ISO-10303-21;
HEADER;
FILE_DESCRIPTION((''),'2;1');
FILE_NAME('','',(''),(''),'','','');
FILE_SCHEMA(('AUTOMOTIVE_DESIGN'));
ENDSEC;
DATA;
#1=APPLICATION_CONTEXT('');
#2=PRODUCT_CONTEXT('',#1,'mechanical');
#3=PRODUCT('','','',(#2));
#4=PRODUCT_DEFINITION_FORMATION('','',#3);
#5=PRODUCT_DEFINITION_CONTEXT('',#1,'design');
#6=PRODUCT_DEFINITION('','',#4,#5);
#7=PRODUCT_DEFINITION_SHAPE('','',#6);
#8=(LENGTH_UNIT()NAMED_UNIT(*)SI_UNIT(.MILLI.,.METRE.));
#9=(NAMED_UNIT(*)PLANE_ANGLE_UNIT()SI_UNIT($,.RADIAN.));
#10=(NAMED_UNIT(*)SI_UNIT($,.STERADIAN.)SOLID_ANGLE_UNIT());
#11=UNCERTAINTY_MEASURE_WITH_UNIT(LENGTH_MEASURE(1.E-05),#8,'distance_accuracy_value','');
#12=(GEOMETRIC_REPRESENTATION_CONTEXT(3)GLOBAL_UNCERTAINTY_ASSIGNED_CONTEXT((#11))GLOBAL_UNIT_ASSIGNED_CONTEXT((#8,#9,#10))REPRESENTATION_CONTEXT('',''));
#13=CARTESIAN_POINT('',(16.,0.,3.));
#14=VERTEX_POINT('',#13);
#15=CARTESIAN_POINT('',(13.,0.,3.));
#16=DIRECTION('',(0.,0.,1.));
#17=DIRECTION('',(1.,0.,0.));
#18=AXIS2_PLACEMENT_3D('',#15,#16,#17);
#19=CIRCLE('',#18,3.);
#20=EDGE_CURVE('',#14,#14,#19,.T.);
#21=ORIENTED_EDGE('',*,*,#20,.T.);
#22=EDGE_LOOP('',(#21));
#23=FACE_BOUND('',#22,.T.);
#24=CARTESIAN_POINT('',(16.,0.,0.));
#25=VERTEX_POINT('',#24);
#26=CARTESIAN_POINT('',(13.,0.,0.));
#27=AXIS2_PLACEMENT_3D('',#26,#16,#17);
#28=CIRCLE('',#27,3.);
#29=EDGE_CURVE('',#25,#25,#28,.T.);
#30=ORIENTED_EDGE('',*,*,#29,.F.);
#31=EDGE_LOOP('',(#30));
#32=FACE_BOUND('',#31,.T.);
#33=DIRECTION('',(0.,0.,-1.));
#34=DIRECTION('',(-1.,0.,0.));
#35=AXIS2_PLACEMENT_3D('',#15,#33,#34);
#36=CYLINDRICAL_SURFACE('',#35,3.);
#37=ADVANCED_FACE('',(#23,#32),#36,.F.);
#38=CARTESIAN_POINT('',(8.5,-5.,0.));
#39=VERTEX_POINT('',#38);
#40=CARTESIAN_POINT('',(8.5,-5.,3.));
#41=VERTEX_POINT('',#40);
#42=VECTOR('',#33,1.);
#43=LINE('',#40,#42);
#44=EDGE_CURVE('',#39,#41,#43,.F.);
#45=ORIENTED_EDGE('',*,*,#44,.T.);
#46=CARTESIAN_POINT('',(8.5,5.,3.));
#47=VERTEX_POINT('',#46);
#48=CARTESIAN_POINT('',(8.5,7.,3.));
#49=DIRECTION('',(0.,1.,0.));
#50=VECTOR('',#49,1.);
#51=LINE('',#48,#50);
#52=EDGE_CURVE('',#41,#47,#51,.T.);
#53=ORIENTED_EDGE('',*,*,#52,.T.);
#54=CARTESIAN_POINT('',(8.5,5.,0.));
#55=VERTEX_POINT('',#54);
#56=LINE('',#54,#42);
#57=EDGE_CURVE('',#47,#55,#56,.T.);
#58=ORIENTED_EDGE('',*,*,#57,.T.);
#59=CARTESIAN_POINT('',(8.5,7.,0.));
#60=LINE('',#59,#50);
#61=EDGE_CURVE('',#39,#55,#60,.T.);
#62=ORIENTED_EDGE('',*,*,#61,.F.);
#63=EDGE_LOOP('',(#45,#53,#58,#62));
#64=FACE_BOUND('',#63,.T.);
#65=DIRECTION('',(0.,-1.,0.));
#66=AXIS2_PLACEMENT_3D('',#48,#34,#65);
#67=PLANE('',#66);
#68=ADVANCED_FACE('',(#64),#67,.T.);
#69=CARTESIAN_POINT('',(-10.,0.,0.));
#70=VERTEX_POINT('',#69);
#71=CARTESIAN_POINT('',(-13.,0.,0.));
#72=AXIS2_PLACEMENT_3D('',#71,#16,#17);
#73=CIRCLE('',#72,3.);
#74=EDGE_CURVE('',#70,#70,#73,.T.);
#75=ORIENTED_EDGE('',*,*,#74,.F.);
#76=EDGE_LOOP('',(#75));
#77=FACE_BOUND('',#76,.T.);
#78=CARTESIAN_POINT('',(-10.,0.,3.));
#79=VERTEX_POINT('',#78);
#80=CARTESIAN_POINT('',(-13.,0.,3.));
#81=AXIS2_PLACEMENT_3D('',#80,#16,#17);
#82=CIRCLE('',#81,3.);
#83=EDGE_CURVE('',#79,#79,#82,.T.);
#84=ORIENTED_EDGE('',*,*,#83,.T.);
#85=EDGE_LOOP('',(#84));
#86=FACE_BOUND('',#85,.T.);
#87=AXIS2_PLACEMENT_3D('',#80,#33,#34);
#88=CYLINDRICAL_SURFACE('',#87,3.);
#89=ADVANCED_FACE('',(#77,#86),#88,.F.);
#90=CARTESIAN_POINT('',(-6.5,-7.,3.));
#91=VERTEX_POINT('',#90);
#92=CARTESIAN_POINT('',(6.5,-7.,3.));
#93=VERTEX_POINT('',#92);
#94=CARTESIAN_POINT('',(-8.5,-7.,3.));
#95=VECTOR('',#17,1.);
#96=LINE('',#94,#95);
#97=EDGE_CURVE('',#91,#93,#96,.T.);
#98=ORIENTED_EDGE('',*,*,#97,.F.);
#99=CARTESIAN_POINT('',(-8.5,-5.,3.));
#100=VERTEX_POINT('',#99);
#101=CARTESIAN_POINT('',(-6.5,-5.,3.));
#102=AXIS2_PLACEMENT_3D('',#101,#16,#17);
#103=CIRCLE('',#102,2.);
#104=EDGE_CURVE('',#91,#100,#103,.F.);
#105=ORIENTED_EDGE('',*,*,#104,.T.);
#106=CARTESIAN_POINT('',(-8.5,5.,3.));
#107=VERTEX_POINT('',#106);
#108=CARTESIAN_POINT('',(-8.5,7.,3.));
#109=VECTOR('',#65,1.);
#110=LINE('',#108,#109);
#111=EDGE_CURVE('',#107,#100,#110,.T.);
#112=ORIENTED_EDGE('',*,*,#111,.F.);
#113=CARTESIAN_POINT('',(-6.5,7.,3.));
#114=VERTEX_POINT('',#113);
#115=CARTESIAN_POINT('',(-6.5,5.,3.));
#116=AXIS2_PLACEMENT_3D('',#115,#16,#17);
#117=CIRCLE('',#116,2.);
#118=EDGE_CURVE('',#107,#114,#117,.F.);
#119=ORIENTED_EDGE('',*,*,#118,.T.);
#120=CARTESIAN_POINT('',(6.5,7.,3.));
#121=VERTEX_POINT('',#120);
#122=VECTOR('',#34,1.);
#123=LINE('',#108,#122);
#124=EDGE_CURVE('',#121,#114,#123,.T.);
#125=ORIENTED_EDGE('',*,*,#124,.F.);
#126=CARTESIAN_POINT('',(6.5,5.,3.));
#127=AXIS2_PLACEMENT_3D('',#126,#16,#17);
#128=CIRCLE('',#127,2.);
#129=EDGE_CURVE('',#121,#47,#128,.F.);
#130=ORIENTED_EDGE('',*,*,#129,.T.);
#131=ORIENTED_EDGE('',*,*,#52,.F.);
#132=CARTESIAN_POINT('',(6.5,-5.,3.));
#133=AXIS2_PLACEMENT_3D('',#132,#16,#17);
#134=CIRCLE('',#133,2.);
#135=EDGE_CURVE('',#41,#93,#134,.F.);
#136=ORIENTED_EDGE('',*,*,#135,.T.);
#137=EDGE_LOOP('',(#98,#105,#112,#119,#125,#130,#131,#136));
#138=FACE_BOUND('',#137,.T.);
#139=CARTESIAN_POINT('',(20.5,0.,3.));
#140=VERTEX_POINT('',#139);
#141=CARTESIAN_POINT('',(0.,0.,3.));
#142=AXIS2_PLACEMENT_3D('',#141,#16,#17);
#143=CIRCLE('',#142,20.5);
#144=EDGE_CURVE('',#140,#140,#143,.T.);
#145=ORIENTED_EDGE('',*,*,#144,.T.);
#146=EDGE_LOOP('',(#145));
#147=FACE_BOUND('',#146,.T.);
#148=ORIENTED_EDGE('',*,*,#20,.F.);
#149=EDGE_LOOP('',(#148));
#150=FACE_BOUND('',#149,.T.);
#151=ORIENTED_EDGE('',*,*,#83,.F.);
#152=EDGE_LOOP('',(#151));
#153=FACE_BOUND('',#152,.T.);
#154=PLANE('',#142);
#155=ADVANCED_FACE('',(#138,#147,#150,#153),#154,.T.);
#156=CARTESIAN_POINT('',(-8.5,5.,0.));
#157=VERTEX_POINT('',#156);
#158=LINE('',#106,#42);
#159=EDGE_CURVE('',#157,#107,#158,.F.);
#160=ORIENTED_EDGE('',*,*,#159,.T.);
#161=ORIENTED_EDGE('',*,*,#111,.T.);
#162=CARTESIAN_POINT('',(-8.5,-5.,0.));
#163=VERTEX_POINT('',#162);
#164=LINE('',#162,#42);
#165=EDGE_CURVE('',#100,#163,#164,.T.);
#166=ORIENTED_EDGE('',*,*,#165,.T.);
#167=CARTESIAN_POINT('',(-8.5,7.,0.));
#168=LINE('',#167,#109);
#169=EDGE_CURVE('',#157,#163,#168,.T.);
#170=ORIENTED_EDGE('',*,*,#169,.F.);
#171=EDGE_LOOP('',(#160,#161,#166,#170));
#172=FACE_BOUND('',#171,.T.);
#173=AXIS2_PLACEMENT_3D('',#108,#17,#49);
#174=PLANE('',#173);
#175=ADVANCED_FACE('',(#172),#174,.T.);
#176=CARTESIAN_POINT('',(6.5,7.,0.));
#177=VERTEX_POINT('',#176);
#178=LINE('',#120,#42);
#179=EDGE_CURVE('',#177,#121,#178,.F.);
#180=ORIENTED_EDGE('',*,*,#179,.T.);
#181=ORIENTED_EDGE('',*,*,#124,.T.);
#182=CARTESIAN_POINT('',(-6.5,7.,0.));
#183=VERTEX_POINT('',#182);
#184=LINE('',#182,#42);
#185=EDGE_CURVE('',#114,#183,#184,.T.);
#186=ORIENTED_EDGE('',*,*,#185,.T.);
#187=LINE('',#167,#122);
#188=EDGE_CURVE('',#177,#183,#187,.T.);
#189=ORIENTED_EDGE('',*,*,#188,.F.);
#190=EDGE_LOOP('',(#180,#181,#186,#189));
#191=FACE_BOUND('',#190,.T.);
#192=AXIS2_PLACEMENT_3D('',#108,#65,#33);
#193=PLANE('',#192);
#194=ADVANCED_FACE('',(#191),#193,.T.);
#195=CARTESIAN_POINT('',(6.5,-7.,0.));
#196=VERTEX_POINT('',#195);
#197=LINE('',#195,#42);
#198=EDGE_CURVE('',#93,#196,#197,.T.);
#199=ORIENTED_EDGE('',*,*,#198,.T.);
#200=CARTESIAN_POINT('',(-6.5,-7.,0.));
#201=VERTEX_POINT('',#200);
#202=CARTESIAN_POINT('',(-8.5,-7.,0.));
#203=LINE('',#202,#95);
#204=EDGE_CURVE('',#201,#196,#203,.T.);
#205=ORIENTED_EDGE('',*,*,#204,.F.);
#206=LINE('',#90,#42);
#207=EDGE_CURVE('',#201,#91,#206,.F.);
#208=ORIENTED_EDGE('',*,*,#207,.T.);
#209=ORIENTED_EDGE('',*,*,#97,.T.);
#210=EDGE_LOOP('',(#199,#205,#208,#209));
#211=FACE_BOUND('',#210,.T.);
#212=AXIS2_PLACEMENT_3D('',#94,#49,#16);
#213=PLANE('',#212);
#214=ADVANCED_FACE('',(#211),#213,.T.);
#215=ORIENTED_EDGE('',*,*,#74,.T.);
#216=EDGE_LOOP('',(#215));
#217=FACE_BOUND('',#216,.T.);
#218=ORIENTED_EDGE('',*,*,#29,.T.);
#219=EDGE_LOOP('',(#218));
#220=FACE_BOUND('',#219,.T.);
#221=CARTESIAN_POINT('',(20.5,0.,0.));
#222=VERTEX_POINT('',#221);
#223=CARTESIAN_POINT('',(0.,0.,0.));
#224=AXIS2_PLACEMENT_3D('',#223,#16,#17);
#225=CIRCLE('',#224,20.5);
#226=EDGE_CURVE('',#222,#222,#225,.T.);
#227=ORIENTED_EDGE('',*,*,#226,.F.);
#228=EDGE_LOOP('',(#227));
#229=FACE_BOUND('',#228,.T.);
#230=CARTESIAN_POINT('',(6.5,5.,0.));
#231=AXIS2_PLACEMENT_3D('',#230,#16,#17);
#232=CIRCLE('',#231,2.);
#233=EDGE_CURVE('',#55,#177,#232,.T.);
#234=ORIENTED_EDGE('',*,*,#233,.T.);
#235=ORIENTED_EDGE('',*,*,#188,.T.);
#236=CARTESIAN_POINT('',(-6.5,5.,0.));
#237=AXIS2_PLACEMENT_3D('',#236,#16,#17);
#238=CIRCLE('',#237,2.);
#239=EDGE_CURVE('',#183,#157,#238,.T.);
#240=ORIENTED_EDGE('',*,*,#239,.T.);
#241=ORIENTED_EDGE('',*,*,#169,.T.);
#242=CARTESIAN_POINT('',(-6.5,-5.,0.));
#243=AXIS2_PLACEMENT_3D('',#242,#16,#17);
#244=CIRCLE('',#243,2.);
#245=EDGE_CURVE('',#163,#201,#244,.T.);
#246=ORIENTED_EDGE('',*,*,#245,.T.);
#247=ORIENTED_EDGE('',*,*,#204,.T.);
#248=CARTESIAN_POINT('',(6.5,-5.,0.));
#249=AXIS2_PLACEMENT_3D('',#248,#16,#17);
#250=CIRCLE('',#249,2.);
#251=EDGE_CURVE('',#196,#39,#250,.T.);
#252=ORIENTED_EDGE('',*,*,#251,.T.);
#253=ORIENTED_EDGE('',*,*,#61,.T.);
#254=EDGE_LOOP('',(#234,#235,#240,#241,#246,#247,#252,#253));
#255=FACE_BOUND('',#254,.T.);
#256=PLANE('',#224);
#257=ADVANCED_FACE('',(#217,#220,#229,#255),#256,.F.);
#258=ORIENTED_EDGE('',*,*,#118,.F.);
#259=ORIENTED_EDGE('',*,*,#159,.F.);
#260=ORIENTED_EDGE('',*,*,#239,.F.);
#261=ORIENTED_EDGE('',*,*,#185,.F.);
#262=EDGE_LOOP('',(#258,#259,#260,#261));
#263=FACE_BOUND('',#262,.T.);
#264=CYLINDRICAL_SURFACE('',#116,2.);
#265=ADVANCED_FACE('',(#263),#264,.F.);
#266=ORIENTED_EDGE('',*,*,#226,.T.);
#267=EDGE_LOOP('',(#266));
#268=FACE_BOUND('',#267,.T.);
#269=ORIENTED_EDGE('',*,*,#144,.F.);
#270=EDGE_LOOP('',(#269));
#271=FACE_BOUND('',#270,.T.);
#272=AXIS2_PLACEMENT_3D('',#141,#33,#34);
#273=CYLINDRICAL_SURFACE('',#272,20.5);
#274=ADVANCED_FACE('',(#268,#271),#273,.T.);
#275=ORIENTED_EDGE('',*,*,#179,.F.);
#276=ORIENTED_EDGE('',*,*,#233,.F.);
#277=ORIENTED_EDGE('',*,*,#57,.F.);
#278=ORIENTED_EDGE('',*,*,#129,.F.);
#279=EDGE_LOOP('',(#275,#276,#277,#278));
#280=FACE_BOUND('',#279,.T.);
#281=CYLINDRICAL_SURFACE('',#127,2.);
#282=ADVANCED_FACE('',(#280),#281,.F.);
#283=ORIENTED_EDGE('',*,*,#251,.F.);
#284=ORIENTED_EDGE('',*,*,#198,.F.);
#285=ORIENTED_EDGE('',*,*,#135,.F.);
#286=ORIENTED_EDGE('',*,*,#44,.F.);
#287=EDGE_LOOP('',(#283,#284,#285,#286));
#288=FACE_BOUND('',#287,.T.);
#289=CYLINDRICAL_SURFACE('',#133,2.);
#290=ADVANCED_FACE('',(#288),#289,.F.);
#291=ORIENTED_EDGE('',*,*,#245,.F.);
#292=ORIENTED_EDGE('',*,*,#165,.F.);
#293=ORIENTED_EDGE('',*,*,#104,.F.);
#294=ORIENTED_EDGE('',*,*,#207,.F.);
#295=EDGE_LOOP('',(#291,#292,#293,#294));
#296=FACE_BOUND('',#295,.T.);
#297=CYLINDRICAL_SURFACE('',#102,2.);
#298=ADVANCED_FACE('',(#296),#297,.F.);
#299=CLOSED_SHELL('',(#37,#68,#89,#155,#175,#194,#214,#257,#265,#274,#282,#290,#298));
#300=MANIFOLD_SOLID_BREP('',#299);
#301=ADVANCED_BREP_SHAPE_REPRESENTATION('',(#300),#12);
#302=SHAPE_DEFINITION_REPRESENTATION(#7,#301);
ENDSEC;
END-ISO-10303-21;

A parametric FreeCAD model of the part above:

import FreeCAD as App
import Part
import Sketcher

V = App.Vector
Q = App.Units.Quantity


def edges_at(feature, points):
    """Names of the edges that pass closest to the given points."""
    edges = feature.Shape.Edges
    near = lambda p: min(range(len(edges)), key=lambda i: edges[i].distToShape(Part.Vertex(*p))[0])
    return sorted({f"Edge{near(p) + 1}" for p in points})


def add_polygon(sketch, points):
    """Adds a closed chain of lines whose ends are joined by coincident constraints."""
    first, n = sketch.GeometryCount, len(points)
    for a, b in zip(points, points[1:] + points[:1]):
        sketch.addGeometry(Part.LineSegment(App.Vector(*a, 0), App.Vector(*b, 0)), False)
    for i in range(n):
        sketch.addConstraint(Sketcher.Constraint("Coincident", first + i, 2, first + (i + 1) % n, 1))

doc = App.newDocument("Part")
params = doc.addObject("Spreadsheet::Sheet", "Params")
for row, (alias, value) in enumerate([
    ("sketch1_diameter", "41 mm"),
    ("sketch1_diameter2", "6 mm"),
    ("sketch1_width", "17 mm"),
    ("sketch1_height", "14 mm"),
    ("pad1_length", "3 mm"),
    ("fillet_radius", "2 mm"),
], start=1):
    params.set(f"A{row}", alias)
    params.set(f"B{row}", "=" + value)
    params.setAlias(f"B{row}", alias)

body = doc.addObject("PartDesign::Body", "Body")

sketch1 = doc.addObject("Sketcher::SketchObject", "Sketch")
body.addObject(sketch1)
sketch1.AttachmentSupport = (doc.XY_Plane, [""])
sketch1.MapMode = "FlatFace"
sketch1.addGeometry(Part.Circle(V(0, 0, 0), V(0, 0, 1), 20.5), False)
sketch1.addGeometry(Part.Circle(V(-13, 0, 0), V(0, 0, 1), 3), False)
add_polygon(sketch1, [(8.5, -7), (-8.5, -7), (-8.5, 7), (8.5, 7)])
sketch1.addGeometry(Part.Circle(V(13, 0, 0), V(0, 0, 1), 3), False)
sketch1.addConstraint(Sketcher.Constraint("Horizontal", 2))
sketch1.addConstraint(Sketcher.Constraint("Vertical", 3))
sketch1.addConstraint(Sketcher.Constraint("Horizontal", 4))
sketch1.addConstraint(Sketcher.Constraint("Vertical", 5))
sketch1.addConstraint(Sketcher.Constraint("Coincident", 0, 3, -1, 1))
sketch1.addConstraint(Sketcher.Constraint("Equal", 1, 6))
sketch1.addConstraint(Sketcher.Constraint("Symmetric", 1, 3, 6, 3, -1, 1))
sketch1.addConstraint(Sketcher.Constraint("Symmetric", 2, 2, 4, 2, -1, 1))
sketch1.addConstraint(Sketcher.Constraint("PointOnObject", 1, 3, -1))
sketch1.addConstraint(Sketcher.Constraint("Diameter", 0, Q("41 mm")))
sketch1.addConstraint(Sketcher.Constraint("Diameter", 1, Q("6 mm")))
sketch1.addConstraint(Sketcher.Constraint("DistanceX", 2, 2, 2, 1, Q("17 mm")))
sketch1.addConstraint(Sketcher.Constraint("DistanceY", 3, 1, 3, 2, Q("14 mm")))
sketch1.addConstraint(Sketcher.Constraint("DistanceX", 1, 3, -1, 1, Q("13 mm")))
sketch1.setExpression("Constraints[13]", "Params.sketch1_diameter")
sketch1.setExpression("Constraints[14]", "Params.sketch1_diameter2")
sketch1.setExpression("Constraints[15]", "Params.sketch1_width")
sketch1.setExpression("Constraints[16]", "Params.sketch1_height")
pad1 = doc.addObject("PartDesign::Pad", "Pad")
body.addObject(pad1)
pad1.Profile = sketch1
pad1.setExpression("Length", "Params.pad1_length")
doc.recompute()

fillet = doc.addObject("PartDesign::Fillet", "Fillet")
body.addObject(fillet)
fillet.Base = (pad1, edges_at(pad1, [
    (8.5, -7, 1.5),
    (8.5, 7, 1.5),
    (-8.5, 7, 1.5),
    (-8.5, -7, 1.5),
]))
fillet.setExpression("Radius", "Params.fillet_radius")

doc.recompute()
